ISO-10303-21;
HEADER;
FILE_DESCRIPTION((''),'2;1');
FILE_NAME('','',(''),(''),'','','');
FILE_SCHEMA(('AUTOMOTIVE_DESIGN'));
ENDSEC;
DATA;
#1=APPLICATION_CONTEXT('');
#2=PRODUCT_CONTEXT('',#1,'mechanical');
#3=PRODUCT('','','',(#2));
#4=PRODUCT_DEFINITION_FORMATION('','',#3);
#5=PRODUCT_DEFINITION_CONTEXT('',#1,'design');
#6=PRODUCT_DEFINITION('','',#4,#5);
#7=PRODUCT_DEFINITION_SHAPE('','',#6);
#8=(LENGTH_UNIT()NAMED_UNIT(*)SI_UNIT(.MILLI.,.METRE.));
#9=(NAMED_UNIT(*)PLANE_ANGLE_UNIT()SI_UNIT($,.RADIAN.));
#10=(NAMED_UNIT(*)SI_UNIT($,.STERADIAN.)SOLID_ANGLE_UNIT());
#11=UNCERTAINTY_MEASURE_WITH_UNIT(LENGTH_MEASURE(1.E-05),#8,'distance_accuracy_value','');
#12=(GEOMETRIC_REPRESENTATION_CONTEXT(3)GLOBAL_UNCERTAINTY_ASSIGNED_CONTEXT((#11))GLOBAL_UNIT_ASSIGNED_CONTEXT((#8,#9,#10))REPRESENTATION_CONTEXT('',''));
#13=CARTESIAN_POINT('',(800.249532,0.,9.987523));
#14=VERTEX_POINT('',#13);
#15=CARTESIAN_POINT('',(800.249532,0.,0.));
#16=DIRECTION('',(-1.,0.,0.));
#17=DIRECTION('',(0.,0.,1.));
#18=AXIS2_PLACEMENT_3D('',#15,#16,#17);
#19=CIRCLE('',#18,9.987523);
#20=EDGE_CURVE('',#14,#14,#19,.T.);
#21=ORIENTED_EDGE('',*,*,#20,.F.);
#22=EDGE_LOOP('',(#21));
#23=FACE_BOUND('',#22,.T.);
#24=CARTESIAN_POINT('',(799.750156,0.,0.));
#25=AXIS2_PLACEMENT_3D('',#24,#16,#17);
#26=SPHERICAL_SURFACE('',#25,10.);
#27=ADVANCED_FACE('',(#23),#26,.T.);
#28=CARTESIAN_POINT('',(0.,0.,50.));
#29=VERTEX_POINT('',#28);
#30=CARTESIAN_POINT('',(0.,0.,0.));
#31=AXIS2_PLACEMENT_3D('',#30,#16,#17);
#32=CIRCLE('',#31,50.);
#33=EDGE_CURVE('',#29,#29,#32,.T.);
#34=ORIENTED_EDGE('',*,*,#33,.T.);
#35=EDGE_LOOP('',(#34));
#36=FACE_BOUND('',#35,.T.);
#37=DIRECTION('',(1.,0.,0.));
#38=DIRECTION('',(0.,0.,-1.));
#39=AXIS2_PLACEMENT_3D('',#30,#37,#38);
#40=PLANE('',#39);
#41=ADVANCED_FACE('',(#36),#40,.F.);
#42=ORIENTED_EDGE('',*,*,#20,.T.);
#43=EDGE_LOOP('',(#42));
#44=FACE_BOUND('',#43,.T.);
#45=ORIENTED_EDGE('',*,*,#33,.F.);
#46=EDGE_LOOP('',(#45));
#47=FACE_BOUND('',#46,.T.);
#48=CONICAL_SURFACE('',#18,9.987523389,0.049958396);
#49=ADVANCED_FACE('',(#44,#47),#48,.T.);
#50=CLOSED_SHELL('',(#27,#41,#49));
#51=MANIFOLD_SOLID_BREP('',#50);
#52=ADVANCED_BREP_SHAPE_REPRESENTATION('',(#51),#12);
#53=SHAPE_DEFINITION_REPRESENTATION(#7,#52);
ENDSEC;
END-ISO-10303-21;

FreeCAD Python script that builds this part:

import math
import FreeCAD as App
import Part
import Sketcher

V = App.Vector

doc = App.newDocument("Part")
body = doc.addObject("PartDesign::Body", "Body")

# Sketch on XZ plane
sketch1 = body.newObject("Sketcher::SketchObject", "Sketch")
sketch1.AttachmentSupport = (doc.getObject("XZ_Plane"), [""])
sketch1.MapMode = "FlatFace"
sketch1.addGeometry(Part.LineSegment(V(0, -50, 0), V(0, 0, 0)), False)
sketch1.addGeometry(Part.LineSegment(V(0, 0, 0), V(810, 0, 0)), False)
sketch1.addGeometry(Part.ArcOfCircle(Part.Circle(V(800, 0, 0), V(0, 0, 1), 10), math.radians(-87), math.radians(0)), False)
sketch1.addGeometry(Part.LineSegment(V(800, -10, 0), V(0, -50, 0)), False)
sketch1.addConstraint(Sketcher.Constraint("Coincident", 0, 2, 1, 1))
sketch1.addConstraint(Sketcher.Constraint("Coincident", 1, 2, 2, 2))
sketch1.addConstraint(Sketcher.Constraint("Tangent", 2, 1, 3, 1))
sketch1.addConstraint(Sketcher.Constraint("Coincident", 3, 2, 0, 1))
sketch1.addConstraint(Sketcher.Constraint("Vertical", 0))
sketch1.addConstraint(Sketcher.Constraint("Horizontal", 1))
sketch1.addConstraint(Sketcher.Constraint("Coincident", 0, 2, -1, 1))
sketch1.addConstraint(Sketcher.Constraint("PointOnObject", 2, 3, -1))
sketch1.addConstraint(Sketcher.Constraint("Radius", 2, 10.0))
sketch1.addConstraint(Sketcher.Constraint("DistanceY", 0, 1, 0, 2, 50.0))
sketch1.addConstraint(Sketcher.Constraint("Distance", 3, 801.24922))
revolution = body.newObject("PartDesign::Revolution", "Revolution")
revolution.Profile = sketch1
revolution.ReferenceAxis = (sketch1, ["H_Axis"])
revolution.Angle = 360

doc.recompute()
